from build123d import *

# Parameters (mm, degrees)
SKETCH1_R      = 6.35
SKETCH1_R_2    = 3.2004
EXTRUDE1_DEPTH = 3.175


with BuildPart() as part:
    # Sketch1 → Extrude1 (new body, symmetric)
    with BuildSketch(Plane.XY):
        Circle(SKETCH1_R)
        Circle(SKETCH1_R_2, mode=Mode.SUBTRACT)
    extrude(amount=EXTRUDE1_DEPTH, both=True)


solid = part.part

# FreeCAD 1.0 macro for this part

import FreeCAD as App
import Part
import Sketcher

V = App.Vector
Q = App.Units.Quantity

doc = App.newDocument("Part")
params = doc.addObject("Spreadsheet::Sheet", "Params")
for row, (alias, value) in enumerate([
    ("sketch1_diameter", "0.5 in"),
    ("sketch1_diameter2", "0.252 in"),
    ("pad1_length", "0.25 in"),
], start=1):
    params.set(f"A{row}", alias)
    params.set(f"B{row}", "=" + value)
    params.setAlias(f"B{row}", alias)

body = doc.addObject("PartDesign::Body", "Body")

# Sketch on XY plane
sketch1 = body.newObject("Sketcher::SketchObject", "Sketch")
sketch1.AttachmentSupport = (doc.getObject("XY_Plane"), [""])
sketch1.MapMode = "FlatFace"
sketch1.addGeometry([
    Part.Circle(V(0, 0, 0), V(0, 0, 1), 6.3),
    Part.Circle(V(0, 0, 0), V(0, 0, 1), 3.2),
], False)
sketch1.addConstraint([
    Sketcher.Constraint("Coincident", 0, 3, -1, 1),
    Sketcher.Constraint("Coincident", 1, 3, -1, 1),
    Sketcher.Constraint("Diameter", 0, Q("0.5 in")),
    Sketcher.Constraint("Diameter", 1, Q("0.252 in")),
])
sketch1.setExpression("Constraints[2]", "Params.sketch1_diameter")
sketch1.setExpression("Constraints[3]", "Params.sketch1_diameter2")
pad1 = body.newObject("PartDesign::Pad", "Pad")
pad1.Profile = sketch1
pad1.setExpression("Length", "Params.pad1_length")
pad1.Midplane = True

doc.recompute()
